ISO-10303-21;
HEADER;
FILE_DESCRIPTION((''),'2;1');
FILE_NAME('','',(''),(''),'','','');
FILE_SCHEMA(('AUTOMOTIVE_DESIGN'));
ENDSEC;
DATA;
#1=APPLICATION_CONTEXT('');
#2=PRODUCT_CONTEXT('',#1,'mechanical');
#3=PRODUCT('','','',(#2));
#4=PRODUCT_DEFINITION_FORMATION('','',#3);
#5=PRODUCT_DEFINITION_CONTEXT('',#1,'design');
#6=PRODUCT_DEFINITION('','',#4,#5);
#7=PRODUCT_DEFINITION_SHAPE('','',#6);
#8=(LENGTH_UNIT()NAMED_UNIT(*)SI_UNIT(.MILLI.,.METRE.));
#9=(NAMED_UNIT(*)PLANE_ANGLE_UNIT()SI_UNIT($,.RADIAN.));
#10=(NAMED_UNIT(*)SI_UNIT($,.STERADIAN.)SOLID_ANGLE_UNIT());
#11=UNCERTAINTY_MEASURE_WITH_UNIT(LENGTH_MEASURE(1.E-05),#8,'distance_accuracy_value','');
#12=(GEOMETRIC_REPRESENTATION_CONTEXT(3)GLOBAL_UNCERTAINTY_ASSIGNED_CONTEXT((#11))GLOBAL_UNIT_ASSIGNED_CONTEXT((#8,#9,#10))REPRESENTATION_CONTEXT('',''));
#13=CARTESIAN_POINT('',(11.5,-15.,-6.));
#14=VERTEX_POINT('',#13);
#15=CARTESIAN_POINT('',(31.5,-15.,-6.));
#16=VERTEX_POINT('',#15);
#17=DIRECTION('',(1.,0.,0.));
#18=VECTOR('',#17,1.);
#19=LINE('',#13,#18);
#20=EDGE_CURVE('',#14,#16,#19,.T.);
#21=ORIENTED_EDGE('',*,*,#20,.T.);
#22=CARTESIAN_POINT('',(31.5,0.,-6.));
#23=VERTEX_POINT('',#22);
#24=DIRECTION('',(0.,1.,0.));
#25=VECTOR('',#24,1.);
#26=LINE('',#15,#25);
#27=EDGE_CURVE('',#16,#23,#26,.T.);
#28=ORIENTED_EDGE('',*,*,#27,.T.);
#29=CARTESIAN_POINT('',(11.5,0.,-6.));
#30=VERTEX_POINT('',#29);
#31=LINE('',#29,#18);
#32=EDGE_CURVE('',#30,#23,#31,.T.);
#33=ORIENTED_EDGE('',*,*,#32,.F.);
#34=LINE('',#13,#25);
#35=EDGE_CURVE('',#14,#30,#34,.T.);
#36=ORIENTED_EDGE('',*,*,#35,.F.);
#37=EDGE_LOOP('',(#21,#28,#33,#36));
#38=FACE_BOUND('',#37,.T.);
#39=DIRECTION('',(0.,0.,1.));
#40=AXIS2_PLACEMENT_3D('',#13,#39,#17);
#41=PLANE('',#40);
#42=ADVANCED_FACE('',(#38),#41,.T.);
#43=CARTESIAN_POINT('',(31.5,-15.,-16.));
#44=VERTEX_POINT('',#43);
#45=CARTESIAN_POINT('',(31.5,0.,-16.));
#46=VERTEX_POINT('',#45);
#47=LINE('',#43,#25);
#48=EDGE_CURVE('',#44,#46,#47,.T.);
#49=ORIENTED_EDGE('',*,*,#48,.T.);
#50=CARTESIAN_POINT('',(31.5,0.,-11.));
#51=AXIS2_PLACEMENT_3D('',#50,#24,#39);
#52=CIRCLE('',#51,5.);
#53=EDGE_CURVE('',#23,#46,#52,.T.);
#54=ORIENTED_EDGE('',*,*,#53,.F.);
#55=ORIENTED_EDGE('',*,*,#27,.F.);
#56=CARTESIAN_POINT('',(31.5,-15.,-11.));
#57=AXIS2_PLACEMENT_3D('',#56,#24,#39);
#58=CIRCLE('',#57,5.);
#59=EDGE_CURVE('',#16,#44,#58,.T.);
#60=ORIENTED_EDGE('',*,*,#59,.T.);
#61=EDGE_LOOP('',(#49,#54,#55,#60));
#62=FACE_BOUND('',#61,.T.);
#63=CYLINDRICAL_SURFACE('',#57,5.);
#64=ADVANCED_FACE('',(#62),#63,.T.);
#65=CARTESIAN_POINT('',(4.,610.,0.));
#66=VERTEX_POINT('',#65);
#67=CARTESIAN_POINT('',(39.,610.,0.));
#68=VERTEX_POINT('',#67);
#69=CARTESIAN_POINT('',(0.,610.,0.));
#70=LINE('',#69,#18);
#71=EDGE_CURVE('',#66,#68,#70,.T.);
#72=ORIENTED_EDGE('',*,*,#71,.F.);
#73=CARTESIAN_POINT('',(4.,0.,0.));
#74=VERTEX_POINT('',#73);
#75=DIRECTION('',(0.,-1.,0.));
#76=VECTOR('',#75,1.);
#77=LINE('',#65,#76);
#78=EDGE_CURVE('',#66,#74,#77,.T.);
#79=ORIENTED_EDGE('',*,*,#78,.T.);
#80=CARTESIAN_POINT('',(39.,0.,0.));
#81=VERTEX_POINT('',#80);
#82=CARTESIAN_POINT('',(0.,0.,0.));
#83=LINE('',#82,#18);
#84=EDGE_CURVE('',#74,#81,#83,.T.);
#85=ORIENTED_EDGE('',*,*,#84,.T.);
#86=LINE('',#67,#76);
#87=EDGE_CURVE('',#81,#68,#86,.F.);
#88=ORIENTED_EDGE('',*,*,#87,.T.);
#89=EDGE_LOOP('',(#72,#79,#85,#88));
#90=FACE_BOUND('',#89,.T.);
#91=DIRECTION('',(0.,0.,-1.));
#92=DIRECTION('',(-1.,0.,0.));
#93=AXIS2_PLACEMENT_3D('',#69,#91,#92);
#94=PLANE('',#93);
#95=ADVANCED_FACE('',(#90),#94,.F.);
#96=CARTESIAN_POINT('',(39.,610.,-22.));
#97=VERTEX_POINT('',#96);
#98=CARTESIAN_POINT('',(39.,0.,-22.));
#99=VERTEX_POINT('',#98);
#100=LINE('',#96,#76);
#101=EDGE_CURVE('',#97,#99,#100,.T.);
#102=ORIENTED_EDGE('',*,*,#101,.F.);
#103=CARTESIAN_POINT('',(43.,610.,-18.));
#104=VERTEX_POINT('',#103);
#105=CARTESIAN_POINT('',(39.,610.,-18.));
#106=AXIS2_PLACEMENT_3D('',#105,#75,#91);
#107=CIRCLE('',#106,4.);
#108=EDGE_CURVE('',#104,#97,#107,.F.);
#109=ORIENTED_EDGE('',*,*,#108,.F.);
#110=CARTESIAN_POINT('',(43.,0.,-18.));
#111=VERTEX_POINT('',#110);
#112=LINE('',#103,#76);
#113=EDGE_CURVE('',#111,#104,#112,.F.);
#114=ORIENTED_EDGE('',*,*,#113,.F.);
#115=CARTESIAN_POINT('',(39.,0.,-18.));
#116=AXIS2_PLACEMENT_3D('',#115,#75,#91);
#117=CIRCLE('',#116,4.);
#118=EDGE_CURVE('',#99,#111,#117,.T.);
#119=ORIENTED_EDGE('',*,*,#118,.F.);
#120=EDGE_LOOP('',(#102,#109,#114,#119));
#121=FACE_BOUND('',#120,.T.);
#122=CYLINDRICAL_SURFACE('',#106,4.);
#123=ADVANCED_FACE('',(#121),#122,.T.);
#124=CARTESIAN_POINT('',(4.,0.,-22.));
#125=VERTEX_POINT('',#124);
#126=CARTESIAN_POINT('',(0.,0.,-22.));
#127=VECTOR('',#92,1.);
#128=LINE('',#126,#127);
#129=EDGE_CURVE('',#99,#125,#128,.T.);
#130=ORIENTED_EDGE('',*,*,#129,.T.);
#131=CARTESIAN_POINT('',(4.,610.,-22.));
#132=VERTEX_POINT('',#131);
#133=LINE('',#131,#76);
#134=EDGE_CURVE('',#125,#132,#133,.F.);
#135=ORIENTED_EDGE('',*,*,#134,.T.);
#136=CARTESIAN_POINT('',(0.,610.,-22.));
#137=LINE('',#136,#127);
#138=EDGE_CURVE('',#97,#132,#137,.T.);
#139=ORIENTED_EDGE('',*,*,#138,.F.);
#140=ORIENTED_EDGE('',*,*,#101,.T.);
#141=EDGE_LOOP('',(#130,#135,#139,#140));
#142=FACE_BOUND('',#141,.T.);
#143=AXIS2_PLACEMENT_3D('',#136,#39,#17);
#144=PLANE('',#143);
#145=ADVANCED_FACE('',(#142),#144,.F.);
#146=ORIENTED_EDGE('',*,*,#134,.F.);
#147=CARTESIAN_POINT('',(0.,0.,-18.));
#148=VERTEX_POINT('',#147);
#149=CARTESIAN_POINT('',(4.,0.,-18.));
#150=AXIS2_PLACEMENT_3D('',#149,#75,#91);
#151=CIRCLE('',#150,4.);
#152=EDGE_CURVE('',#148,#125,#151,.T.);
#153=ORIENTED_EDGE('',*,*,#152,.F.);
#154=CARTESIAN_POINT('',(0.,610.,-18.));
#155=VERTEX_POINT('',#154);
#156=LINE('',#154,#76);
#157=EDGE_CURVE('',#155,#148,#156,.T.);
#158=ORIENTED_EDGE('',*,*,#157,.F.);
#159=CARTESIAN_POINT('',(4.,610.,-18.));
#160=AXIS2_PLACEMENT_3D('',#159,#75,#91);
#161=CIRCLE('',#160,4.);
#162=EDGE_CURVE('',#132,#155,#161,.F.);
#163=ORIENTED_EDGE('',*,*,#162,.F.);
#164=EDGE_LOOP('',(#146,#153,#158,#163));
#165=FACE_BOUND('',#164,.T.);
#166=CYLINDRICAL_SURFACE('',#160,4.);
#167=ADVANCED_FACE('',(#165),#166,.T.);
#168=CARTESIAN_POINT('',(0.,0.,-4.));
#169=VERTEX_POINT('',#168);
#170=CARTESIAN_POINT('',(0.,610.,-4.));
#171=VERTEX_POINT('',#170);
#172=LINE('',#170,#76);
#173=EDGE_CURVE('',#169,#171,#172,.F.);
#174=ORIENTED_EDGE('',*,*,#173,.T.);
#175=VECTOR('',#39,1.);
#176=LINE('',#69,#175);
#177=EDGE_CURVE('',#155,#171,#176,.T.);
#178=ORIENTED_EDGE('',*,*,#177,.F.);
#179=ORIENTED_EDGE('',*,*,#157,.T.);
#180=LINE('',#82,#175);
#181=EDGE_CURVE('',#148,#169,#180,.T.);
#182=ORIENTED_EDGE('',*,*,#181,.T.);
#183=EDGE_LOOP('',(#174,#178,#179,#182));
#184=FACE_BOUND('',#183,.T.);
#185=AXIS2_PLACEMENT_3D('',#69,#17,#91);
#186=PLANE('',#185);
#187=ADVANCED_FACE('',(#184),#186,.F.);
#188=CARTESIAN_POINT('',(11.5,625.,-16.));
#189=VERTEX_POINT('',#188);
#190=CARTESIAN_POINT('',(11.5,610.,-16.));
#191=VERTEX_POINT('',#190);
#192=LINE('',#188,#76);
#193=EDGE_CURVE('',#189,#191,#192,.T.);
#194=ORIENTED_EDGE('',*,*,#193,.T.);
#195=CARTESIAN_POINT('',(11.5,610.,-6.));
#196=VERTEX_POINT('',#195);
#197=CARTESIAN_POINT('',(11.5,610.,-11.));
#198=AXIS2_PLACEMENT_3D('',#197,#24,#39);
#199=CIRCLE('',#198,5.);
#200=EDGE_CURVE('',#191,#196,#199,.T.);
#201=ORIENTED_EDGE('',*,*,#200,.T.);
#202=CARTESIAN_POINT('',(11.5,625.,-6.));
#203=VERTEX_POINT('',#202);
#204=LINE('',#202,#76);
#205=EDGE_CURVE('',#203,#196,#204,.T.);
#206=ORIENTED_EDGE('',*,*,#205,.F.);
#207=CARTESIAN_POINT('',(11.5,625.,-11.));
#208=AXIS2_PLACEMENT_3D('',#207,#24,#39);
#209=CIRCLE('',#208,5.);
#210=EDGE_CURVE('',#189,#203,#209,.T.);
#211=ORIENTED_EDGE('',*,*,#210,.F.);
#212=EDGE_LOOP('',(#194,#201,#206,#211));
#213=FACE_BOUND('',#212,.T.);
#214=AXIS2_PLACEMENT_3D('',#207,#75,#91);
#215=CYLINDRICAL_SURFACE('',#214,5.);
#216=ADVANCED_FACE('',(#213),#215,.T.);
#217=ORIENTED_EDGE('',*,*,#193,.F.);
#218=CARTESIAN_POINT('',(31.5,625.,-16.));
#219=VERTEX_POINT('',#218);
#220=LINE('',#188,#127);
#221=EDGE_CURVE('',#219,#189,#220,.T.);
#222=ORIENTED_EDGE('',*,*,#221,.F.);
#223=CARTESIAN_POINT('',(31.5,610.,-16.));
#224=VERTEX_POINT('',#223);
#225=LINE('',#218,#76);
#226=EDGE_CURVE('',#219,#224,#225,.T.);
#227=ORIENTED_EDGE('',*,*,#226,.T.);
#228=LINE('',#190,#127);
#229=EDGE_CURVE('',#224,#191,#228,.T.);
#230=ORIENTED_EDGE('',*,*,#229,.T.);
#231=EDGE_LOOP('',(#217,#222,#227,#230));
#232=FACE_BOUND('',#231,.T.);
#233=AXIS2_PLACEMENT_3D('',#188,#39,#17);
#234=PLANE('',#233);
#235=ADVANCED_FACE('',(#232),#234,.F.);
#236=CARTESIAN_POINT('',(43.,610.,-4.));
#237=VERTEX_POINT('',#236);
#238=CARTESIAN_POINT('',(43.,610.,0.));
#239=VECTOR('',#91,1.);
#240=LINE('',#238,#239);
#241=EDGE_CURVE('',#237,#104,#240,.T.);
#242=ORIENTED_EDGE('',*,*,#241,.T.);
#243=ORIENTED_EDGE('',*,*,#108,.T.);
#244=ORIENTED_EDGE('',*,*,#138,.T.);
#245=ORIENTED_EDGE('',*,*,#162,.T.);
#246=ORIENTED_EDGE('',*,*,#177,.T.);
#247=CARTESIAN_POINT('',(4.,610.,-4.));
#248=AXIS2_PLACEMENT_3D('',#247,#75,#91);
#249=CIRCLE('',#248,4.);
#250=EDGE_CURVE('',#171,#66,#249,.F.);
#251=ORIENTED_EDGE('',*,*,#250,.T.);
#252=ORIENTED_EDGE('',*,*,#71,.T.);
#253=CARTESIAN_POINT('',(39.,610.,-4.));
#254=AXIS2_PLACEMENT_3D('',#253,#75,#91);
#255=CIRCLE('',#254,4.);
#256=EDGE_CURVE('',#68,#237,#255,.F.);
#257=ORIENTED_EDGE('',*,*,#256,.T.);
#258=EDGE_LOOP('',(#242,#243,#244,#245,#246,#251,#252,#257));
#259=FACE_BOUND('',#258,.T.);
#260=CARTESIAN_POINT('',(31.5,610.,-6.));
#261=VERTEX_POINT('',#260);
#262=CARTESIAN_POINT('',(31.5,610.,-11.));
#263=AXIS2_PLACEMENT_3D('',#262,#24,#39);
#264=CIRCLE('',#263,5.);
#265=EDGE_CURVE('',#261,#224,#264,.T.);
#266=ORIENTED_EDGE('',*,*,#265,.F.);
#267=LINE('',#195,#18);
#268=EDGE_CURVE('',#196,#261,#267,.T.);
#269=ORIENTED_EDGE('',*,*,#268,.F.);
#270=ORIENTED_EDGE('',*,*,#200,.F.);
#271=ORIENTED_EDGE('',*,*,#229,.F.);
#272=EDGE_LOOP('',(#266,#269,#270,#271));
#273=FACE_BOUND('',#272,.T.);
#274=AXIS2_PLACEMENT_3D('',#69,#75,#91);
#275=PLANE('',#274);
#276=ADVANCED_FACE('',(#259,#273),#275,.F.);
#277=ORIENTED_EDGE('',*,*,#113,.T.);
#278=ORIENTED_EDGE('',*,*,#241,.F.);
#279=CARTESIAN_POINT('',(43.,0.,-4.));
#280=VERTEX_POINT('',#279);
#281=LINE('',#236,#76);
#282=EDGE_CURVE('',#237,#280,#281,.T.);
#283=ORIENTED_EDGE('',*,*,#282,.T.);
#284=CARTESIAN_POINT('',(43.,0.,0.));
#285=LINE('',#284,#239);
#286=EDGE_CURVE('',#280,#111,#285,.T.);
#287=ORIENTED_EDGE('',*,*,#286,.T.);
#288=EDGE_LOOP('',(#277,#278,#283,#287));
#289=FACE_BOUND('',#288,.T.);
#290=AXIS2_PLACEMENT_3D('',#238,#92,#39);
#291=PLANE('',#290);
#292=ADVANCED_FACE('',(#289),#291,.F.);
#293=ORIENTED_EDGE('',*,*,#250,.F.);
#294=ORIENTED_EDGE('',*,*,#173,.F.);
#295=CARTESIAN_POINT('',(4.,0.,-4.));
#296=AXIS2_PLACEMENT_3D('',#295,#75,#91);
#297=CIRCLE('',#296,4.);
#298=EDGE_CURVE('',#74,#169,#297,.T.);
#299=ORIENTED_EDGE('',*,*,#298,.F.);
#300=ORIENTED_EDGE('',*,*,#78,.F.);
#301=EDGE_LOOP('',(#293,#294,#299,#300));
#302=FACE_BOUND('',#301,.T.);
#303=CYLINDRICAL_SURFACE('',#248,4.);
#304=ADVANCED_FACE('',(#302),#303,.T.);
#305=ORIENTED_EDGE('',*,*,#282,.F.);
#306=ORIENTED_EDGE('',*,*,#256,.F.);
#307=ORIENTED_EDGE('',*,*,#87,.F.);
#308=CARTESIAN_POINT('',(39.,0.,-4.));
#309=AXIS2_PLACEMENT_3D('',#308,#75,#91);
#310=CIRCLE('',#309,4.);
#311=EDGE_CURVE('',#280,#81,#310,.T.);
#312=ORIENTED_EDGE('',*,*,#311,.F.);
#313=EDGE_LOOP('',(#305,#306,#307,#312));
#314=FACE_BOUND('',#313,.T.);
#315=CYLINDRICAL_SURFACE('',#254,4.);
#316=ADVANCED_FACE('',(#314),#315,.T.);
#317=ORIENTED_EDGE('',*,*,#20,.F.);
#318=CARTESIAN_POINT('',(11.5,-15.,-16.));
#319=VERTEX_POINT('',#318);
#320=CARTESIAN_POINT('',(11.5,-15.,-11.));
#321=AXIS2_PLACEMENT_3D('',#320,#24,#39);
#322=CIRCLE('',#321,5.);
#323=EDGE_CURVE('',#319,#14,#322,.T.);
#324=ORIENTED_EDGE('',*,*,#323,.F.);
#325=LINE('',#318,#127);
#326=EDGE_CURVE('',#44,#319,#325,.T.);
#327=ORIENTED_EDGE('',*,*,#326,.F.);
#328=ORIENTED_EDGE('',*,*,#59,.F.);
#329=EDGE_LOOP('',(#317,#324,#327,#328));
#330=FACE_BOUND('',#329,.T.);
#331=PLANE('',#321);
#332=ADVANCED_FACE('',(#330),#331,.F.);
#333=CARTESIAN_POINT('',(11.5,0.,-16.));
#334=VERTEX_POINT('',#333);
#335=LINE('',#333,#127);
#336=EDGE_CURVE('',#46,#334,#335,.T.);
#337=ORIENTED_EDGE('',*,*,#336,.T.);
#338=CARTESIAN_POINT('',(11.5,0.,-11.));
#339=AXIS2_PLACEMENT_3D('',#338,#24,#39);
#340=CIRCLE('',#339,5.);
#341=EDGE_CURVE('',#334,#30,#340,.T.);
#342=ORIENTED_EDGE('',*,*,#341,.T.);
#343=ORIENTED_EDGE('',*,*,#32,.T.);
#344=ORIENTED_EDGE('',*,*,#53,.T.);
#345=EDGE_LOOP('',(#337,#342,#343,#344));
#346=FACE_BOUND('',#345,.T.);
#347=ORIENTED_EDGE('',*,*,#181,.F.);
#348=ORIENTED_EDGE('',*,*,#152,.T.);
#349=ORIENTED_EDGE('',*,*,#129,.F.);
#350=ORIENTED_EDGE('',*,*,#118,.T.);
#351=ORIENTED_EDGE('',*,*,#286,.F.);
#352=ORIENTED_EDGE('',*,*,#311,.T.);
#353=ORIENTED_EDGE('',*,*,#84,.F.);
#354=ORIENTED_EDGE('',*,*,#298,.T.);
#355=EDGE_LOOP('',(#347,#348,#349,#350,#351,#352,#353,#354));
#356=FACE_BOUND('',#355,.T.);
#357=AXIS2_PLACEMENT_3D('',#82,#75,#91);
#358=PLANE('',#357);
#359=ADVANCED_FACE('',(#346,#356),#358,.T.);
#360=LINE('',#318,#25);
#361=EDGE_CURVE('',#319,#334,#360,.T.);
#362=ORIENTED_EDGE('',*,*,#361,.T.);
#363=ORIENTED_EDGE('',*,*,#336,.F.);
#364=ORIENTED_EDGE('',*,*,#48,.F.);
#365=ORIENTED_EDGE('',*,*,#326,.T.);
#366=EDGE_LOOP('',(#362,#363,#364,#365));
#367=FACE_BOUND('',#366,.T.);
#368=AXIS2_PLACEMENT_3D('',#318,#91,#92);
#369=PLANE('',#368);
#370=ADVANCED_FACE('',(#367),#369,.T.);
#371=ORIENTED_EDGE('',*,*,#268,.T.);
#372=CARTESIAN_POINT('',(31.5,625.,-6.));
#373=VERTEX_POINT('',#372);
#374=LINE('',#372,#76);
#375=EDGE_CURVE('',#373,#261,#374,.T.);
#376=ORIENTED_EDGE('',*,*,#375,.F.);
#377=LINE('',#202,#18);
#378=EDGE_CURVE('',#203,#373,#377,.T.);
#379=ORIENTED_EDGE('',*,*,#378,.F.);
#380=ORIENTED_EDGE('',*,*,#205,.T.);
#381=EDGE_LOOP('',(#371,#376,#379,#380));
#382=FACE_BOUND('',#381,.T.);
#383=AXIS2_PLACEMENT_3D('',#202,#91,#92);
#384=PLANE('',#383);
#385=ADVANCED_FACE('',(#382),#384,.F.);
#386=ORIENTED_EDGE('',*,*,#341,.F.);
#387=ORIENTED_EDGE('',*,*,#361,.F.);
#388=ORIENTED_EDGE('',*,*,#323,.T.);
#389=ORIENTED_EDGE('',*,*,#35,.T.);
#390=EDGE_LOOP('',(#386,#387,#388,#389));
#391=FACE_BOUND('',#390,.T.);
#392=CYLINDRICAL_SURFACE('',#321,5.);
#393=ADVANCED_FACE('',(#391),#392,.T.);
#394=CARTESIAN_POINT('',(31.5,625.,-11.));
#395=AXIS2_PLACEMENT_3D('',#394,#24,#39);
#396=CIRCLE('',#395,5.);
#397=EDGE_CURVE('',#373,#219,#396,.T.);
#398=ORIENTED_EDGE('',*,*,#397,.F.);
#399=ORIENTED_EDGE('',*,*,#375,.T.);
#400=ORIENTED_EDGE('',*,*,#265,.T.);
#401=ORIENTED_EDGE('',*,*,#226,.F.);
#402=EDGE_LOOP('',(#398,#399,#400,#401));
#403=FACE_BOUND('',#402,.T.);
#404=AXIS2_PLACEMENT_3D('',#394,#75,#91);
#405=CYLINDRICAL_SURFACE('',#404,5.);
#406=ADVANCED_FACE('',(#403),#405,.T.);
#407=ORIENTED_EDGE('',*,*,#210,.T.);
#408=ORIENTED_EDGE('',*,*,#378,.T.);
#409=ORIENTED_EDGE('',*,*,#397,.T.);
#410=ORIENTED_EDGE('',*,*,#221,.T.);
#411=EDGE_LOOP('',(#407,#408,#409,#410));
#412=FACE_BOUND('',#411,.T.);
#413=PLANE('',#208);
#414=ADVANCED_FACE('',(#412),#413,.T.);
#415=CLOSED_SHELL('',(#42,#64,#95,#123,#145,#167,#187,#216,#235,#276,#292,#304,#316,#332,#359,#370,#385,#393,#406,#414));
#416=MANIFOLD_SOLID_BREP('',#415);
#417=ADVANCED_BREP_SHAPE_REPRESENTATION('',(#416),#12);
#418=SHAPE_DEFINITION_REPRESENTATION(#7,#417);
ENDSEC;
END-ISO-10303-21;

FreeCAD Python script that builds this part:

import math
import FreeCAD as App
import Part
import Sketcher
from FreeCAD import Vector
Q = App.Units.Quantity


def edges_at(feature, points):
    """Names of the edges that pass closest to the given points."""
    edges = feature.Shape.Edges
    near = lambda p: min(range(len(edges)), key=lambda i: edges[i].distToShape(Part.Vertex(*p))[0])
    return sorted({f"Edge{near(p) + 1}" for p in points})

doc = App.newDocument("Part")
body = doc.addObject("PartDesign::Body", "Body")

# Sketch on XZ plane
sketch1 = body.newObject("Sketcher::SketchObject", "Sketch")
sketch1.AttachmentSupport = (doc.getObject("XZ_Plane"), [""])
sketch1.MapMode = "FlatFace"
sketch1.addGeometry([
    Part.LineSegment(Vector(0, -22, 0), Vector(0, 0, 0)),
    Part.LineSegment(Vector(0, 0, 0), Vector(43, 0, 0)),
    Part.LineSegment(Vector(43, 0, 0), Vector(43, -22, 0)),
    Part.LineSegment(Vector(43, -22, 0), Vector(0, -22, 0)),
], False)
sketch1.addConstraint([
    Sketcher.Constraint("Coincident", 0, 2, 1, 1),
    Sketcher.Constraint("Coincident", 1, 2, 2, 1),
    Sketcher.Constraint("Coincident", 2, 2, 3, 1),
    Sketcher.Constraint("Coincident", 3, 2, 0, 1),
    Sketcher.Constraint("Vertical", 0),
    Sketcher.Constraint("Horizontal", 1),
    Sketcher.Constraint("Vertical", 2),
    Sketcher.Constraint("Horizontal", 3),
    Sketcher.Constraint("Coincident", 0, 2, -1, 1),
    Sketcher.Constraint("DistanceX", 1, 1, 1, 2, Q("43 mm")),
    Sketcher.Constraint("DistanceY", 0, 1, 0, 2, Q("22 mm")),
])
pad1 = body.newObject("PartDesign::Pad", "Pad")
pad1.Profile = sketch1
pad1.Length = 610
pad1.Reversed = True

# Sketch on XZ plane
sketch2 = body.newObject("Sketcher::SketchObject", "Sketch001")
sketch2.AttachmentSupport = (doc.getObject("XZ_Plane"), [""])
sketch2.MapMode = "FlatFace"
sketch2.AttachmentOffset = App.Placement(Vector(0, 0, -610), App.Rotation())
sketch2.addGeometry([
    Part.LineSegment(Vector(32, -16, 0), Vector(12, -16, 0)),
    Part.ArcOfCircle(Part.Circle(Vector(12, -11, 0), Vector(0, 0, 1), 5), math.radians(90), math.radians(270)),
    Part.LineSegment(Vector(12, -6, 0), Vector(32, -6, 0)),
    Part.ArcOfCircle(Part.Circle(Vector(32, -11, 0), Vector(0, 0, 1), 5), math.radians(-90), math.radians(90)),
], False)
sketch2.addConstraint([
    Sketcher.Constraint("Tangent", 0, 2, 1, 2),
    Sketcher.Constraint("Tangent", 1, 1, 2, 1),
    Sketcher.Constraint("Tangent", 2, 2, 3, 2),
    Sketcher.Constraint("Tangent", 3, 1, 0, 1),
    Sketcher.Constraint("Horizontal", 0),
    Sketcher.Constraint("Horizontal", 2),
    Sketcher.Constraint("Radius", 1, Q("5 mm")),
    Sketcher.Constraint("DistanceX", 0, 2, 0, 1, Q("20 mm")),
    Sketcher.Constraint("DistanceY", 1, 3, -1, 1, Q("11 mm")),
    Sketcher.Constraint("DistanceX", -1, 1, 1, 3, Q("11.5 mm")),
])
pad2 = body.newObject("PartDesign::Pad", "Pad001")
pad2.Profile = sketch2
pad2.Length = 15
pad2.Reversed = True

# Sketch on XZ plane
sketch3 = body.newObject("Sketcher::SketchObject", "Sketch002")
sketch3.AttachmentSupport = (doc.getObject("XZ_Plane"), [""])
sketch3.MapMode = "FlatFace"
sketch3.AttachmentOffset = App.Placement(Vector(0, 0, 15), App.Rotation())
sketch3.addGeometry([
    Part.LineSegment(Vector(32, -16, 0), Vector(12, -16, 0)),
    Part.ArcOfCircle(Part.Circle(Vector(12, -11, 0), Vector(0, 0, 1), 5), math.radians(90), math.radians(270)),
    Part.LineSegment(Vector(12, -6, 0), Vector(32, -6, 0)),
    Part.ArcOfCircle(Part.Circle(Vector(32, -11, 0), Vector(0, 0, 1), 5), math.radians(-90), math.radians(90)),
], False)
sketch3.addConstraint([
    Sketcher.Constraint("Tangent", 0, 2, 1, 2),
    Sketcher.Constraint("Tangent", 1, 1, 2, 1),
    Sketcher.Constraint("Tangent", 2, 2, 3, 2),
    Sketcher.Constraint("Tangent", 3, 1, 0, 1),
    Sketcher.Constraint("Horizontal", 0),
    Sketcher.Constraint("Horizontal", 2),
    Sketcher.Constraint("Radius", 1, Q("5 mm")),
    Sketcher.Constraint("DistanceX", 0, 2, 0, 1, Q("20 mm")),
    Sketcher.Constraint("DistanceY", 1, 3, -1, 1, Q("11 mm")),
    Sketcher.Constraint("DistanceX", -1, 1, 1, 3, Q("11.5 mm")),
])
pad3 = body.newObject("PartDesign::Pad", "Pad002")
pad3.Profile = sketch3
pad3.Length = 15
pad3.Reversed = True
doc.recompute()

fillet = body.newObject("PartDesign::Fillet", "Fillet")
fillet.Base = (pad3, edges_at(pad3, [
    (0, 305, -22),
    (43, 305, -22),
    (43, 305, 0),
    (0, 305, 0),
]))
fillet.Radius = 4

doc.recompute()
